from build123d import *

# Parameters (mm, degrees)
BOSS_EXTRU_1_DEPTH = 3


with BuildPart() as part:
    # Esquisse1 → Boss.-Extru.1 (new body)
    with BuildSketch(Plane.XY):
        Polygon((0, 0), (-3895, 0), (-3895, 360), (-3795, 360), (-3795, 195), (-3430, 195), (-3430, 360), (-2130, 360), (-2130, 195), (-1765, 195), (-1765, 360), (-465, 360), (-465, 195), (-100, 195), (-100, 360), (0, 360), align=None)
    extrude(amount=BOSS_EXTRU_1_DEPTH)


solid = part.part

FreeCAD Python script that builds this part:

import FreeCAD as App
import Part
import Sketcher
Q = App.Units.Quantity

doc = App.newDocument("Part")
body = doc.addObject("PartDesign::Body", "Body")

# Sketch on XY plane
sketch1 = body.newObject("Sketcher::SketchObject", "Sketch")
sketch1.AttachmentSupport = (doc.getObject("XY_Plane"), [""])
sketch1.MapMode = "FlatFace"
sketch1.addGeometry([
    Part.LineSegment(App.Vector(-3895, 0, 0), App.Vector(0, 0, 0)),  # 0
    Part.LineSegment(App.Vector(0, 0, 0), App.Vector(0, 360, 0)),  # 1
    Part.LineSegment(App.Vector(0, 360, 0), App.Vector(-100, 360, 0)),  # 2
    Part.LineSegment(App.Vector(-100, 360, 0), App.Vector(-100, 195, 0)),  # 3
    Part.LineSegment(App.Vector(-100, 195, 0), App.Vector(-465, 195, 0)),  # 4
    Part.LineSegment(App.Vector(-465, 195, 0), App.Vector(-465, 360, 0)),  # 5
    Part.LineSegment(App.Vector(-465, 360, 0), App.Vector(-1765, 360, 0)),  # 6
    Part.LineSegment(App.Vector(-1765, 360, 0), App.Vector(-1765, 195, 0)),  # 7
    Part.LineSegment(App.Vector(-1765, 195, 0), App.Vector(-2130, 195, 0)),  # 8
    Part.LineSegment(App.Vector(-2130, 195, 0), App.Vector(-2130, 360, 0)),  # 9
    Part.LineSegment(App.Vector(-2130, 360, 0), App.Vector(-3430, 360, 0)),  # 10
    Part.LineSegment(App.Vector(-3430, 360, 0), App.Vector(-3430, 195, 0)),  # 11
    Part.LineSegment(App.Vector(-3430, 195, 0), App.Vector(-3795, 195, 0)),  # 12
    Part.LineSegment(App.Vector(-3795, 195, 0), App.Vector(-3795, 360, 0)),  # 13
    Part.LineSegment(App.Vector(-3795, 360, 0), App.Vector(-3895, 360, 0)),  # 14
    Part.LineSegment(App.Vector(-3895, 360, 0), App.Vector(-3895, 0, 0)),  # 15
], False)
sketch1.addConstraint([
    Sketcher.Constraint("Coincident", 0, 2, 1, 1),
    Sketcher.Constraint("Coincident", 1, 2, 2, 1),
    Sketcher.Constraint("Coincident", 2, 2, 3, 1),
    Sketcher.Constraint("Coincident", 3, 2, 4, 1),
    Sketcher.Constraint("Coincident", 4, 2, 5, 1),
    Sketcher.Constraint("Coincident", 5, 2, 6, 1),
    Sketcher.Constraint("Coincident", 6, 2, 7, 1),
    Sketcher.Constraint("Coincident", 7, 2, 8, 1),
    Sketcher.Constraint("Coincident", 8, 2, 9, 1),
    Sketcher.Constraint("Coincident", 9, 2, 10, 1),
    Sketcher.Constraint("Coincident", 10, 2, 11, 1),
    Sketcher.Constraint("Coincident", 11, 2, 12, 1),
    Sketcher.Constraint("Coincident", 12, 2, 13, 1),
    Sketcher.Constraint("Coincident", 13, 2, 14, 1),
    Sketcher.Constraint("Coincident", 14, 2, 15, 1),
    Sketcher.Constraint("Coincident", 15, 2, 0, 1),
    Sketcher.Constraint("Horizontal", 0),
    Sketcher.Constraint("Vertical", 1),
    Sketcher.Constraint("Horizontal", 2),
    Sketcher.Constraint("Vertical", 3),
    Sketcher.Constraint("Horizontal", 4),
    Sketcher.Constraint("Vertical", 5),
    Sketcher.Constraint("Horizontal", 6),
    Sketcher.Constraint("Vertical", 7),
    Sketcher.Constraint("Horizontal", 8),
    Sketcher.Constraint("Vertical", 9),
    Sketcher.Constraint("Horizontal", 10),
    Sketcher.Constraint("Vertical", 11),
    Sketcher.Constraint("Horizontal", 12),
    Sketcher.Constraint("Vertical", 13),
    Sketcher.Constraint("Horizontal", 14),
    Sketcher.Constraint("Vertical", 15),
    Sketcher.Constraint("Coincident", 0, 2, -1, 1),
    Sketcher.Constraint("Horizontal", 2, 2, 5, 2),
    Sketcher.Constraint("Horizontal", 4, 2, 7, 2),
    Sketcher.Constraint("Horizontal", 6, 2, 9, 2),
    Sketcher.Constraint("Horizontal", 8, 2, 11, 2),
    Sketcher.Constraint("Horizontal", 10, 2, 13, 2),
    Sketcher.Constraint("Equal", 4, 8),
    Sketcher.Constraint("Equal", 6, 10),
    Sketcher.Constraint("Equal", 8, 12),
    Sketcher.Constraint("Equal", 2, 14),
    Sketcher.Constraint("DistanceX", 0, 1, 0, 2, Q("3895 mm")),
    Sketcher.Constraint("DistanceX", 2, 2, 2, 1, Q("100 mm")),
    Sketcher.Constraint("DistanceX", 4, 2, 4, 1, Q("365 mm")),
    Sketcher.Constraint("DistanceY", 1, 1, 1, 2, Q("360 mm")),
    Sketcher.Constraint("DistanceY", 3, 2, 3, 1, Q("165 mm")),
])
pad1 = body.newObject("PartDesign::Pad", "Pad")
pad1.Profile = sketch1
pad1.Length = 3

doc.recompute()
